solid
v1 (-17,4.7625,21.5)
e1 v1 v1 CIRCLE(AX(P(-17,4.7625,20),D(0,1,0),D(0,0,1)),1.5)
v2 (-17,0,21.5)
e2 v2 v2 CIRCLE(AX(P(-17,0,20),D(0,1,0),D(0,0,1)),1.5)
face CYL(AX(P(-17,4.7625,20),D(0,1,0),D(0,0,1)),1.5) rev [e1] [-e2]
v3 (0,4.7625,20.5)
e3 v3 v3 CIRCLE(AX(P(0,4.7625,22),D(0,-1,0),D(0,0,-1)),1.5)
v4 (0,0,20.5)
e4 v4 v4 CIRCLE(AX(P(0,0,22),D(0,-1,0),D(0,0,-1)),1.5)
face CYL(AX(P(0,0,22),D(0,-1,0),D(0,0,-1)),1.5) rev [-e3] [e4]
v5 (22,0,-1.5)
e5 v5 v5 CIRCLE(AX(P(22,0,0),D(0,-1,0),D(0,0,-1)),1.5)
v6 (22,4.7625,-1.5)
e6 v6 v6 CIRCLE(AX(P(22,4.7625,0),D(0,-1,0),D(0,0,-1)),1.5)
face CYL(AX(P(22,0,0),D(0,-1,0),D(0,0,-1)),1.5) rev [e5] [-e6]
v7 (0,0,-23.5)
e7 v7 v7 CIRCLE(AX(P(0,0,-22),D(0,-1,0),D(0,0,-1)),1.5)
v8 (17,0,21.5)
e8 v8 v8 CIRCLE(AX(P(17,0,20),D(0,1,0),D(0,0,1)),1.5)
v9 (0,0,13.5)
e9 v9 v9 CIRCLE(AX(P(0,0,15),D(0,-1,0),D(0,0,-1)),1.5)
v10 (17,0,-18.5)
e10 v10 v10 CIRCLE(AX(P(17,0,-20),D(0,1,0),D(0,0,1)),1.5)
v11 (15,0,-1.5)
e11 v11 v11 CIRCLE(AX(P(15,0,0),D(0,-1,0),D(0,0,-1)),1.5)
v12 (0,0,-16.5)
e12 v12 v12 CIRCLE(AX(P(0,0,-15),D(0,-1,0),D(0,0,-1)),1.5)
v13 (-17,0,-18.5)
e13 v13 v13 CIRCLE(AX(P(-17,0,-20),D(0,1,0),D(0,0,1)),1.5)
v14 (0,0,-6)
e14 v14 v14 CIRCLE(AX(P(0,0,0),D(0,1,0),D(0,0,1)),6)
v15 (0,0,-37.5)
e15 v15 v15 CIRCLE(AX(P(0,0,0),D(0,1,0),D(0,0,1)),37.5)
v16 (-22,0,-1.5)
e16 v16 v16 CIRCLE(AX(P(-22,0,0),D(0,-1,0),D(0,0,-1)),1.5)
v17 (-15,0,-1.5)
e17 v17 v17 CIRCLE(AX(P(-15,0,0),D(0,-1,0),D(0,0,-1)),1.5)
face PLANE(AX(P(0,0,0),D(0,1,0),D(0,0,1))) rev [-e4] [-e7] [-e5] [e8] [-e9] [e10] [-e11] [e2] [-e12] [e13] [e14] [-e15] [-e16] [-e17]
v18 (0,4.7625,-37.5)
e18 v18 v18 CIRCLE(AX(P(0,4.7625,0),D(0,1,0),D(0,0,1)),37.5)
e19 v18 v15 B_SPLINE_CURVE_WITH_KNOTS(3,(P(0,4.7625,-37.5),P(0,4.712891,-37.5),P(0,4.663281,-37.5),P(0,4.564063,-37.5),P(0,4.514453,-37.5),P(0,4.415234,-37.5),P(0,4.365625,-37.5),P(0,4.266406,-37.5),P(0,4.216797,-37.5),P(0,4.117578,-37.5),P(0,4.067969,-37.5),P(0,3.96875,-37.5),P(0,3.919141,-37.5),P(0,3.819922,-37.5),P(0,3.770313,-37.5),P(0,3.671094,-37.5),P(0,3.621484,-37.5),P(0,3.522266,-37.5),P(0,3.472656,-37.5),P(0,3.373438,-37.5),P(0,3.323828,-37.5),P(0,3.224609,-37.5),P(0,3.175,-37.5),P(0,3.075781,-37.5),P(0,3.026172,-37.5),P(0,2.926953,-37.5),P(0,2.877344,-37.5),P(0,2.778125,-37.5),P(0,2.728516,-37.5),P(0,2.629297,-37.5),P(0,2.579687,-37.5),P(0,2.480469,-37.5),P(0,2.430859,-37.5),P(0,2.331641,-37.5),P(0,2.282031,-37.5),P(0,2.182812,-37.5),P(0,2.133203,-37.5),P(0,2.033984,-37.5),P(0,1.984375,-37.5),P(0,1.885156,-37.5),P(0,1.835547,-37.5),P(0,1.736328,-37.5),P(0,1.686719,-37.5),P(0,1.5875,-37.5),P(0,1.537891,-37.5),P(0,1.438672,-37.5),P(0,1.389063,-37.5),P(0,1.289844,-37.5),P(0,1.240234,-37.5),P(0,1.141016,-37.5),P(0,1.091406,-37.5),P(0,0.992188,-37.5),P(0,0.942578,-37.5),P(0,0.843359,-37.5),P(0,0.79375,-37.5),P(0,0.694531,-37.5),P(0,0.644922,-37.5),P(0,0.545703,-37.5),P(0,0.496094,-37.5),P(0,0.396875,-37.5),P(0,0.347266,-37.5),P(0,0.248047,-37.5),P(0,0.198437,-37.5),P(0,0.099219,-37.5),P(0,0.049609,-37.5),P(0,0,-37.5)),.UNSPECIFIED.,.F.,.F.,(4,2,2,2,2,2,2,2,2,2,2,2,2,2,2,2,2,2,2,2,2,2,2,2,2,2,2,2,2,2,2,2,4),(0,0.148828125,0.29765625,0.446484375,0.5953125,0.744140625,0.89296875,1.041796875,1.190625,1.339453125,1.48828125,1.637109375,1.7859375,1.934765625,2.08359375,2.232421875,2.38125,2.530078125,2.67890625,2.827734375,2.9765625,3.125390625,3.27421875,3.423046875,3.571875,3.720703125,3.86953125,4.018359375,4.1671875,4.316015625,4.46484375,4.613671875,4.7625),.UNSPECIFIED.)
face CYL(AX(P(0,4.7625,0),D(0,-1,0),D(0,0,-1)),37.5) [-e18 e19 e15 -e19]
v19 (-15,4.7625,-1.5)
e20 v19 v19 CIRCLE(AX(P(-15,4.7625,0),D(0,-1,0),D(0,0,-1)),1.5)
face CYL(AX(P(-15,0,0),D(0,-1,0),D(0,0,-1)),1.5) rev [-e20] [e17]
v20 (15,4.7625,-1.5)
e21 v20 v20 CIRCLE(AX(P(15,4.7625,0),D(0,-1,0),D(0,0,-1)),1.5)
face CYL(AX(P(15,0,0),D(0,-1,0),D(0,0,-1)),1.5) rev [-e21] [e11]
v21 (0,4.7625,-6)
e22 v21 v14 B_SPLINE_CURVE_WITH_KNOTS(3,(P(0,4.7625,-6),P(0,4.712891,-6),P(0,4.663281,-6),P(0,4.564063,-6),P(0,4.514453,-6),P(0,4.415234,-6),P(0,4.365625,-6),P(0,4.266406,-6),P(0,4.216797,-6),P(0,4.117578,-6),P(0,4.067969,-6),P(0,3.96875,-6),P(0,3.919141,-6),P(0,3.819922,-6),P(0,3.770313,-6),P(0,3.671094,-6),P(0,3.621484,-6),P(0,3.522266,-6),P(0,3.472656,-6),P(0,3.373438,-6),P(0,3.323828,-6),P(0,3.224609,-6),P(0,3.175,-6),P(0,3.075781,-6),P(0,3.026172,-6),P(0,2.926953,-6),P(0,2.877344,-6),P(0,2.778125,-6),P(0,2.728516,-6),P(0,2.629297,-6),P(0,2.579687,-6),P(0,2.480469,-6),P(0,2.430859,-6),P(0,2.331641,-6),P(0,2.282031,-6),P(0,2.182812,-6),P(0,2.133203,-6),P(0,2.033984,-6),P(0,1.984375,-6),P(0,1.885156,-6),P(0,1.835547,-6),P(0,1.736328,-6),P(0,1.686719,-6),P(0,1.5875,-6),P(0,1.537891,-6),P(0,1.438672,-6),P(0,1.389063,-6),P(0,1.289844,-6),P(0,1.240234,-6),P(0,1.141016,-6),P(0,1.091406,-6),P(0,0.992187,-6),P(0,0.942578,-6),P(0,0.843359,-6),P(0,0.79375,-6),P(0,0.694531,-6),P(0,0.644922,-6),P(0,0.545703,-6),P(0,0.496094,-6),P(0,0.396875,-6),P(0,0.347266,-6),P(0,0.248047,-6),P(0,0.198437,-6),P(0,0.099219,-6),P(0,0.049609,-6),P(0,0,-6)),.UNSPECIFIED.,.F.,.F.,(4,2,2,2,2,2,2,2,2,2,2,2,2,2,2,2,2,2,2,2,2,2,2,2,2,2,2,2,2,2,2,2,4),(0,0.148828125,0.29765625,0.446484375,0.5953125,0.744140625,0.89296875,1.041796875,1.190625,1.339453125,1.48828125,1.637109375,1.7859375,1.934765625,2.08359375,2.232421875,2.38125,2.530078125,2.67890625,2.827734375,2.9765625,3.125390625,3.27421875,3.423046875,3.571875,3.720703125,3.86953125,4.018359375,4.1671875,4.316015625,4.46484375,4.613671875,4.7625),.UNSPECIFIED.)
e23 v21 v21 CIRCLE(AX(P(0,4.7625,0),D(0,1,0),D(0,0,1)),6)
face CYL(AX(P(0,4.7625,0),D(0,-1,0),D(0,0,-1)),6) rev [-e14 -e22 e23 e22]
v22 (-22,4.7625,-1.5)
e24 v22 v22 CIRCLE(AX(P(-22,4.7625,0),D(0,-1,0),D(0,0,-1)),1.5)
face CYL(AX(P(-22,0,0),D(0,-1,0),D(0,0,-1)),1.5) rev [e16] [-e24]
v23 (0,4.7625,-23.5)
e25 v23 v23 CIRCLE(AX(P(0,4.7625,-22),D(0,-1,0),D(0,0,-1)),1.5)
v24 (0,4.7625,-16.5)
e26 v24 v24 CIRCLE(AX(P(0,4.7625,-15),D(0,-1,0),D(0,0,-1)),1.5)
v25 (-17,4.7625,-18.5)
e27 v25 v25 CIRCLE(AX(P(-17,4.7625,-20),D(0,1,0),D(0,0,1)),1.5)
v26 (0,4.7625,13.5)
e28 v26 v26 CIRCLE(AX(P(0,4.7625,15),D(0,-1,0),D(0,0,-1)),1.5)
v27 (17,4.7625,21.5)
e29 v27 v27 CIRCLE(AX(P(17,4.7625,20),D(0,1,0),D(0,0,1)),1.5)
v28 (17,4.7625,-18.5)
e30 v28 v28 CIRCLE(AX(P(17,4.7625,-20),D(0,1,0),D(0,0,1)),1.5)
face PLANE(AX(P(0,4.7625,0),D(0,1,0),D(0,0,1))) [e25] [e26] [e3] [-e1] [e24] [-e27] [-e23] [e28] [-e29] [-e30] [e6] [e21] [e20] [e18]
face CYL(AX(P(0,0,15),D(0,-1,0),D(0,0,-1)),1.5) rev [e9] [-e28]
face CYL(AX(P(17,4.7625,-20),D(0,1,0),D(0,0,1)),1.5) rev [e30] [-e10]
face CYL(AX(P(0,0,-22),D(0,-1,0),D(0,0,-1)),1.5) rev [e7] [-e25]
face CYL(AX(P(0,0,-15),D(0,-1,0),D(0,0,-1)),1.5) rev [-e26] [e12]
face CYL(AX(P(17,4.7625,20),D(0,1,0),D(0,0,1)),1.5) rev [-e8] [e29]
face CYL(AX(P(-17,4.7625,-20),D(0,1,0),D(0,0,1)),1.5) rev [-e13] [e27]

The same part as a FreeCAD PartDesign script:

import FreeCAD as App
import Part
import Sketcher

V = App.Vector
Q = App.Units.Quantity

doc = App.newDocument("Part")
body = doc.addObject("PartDesign::Body", "Body")

# Sketch on XZ plane
sketch1 = doc.addObject("Sketcher::SketchObject", "Sketch")
body.addObject(sketch1)
sketch1.AttachmentSupport = (doc.XZ_Plane, [""])
sketch1.MapMode = "FlatFace"
sketch1.addGeometry([
    Part.Circle(V(0, 0, 0), V(0, 0, 1), 38),
    Part.Circle(V(0, 0, 0), V(0, 0, 1), 6),
], False)
sketch1.addConstraint([
    Sketcher.Constraint("Coincident", 0, 3, -1, 1),
    Sketcher.Constraint("Coincident", 1, 3, -1, 1),
    Sketcher.Constraint("Diameter", 0, Q("75 mm")),
    Sketcher.Constraint("Diameter", 1, Q("12 mm")),
])
pad1 = doc.addObject("PartDesign::Pad", "Pad")
body.addObject(pad1)
pad1.Profile = sketch1
pad1.Length = 4.7625
pad1.Reversed = True

# Sketch on XZ plane
sketch2 = doc.addObject("Sketcher::SketchObject", "Sketch001")
body.addObject(sketch2)
sketch2.AttachmentSupport = (doc.XZ_Plane, [""])
sketch2.MapMode = "FlatFace"
sketch2.addGeometry([
    Part.Circle(V(0, -15, 0), V(0, 0, 1), 1.5),  # 0
    Part.Circle(V(0, -22, 0), V(0, 0, 1), 1.5),  # 1
    Part.Circle(V(-22, 0, 0), V(0, 0, 1), 1.5),  # 2
    Part.Circle(V(-15, 0, 0), V(0, 0, 1), 1.5),  # 3
    Part.Circle(V(0, 15, 0), V(0, 0, 1), 1.5),  # 4
    Part.Circle(V(0, 22, 0), V(0, 0, 1), 1.5),  # 5
    Part.Circle(V(15, 0, 0), V(0, 0, 1), 1.5),  # 6
    Part.Circle(V(22, 0, 0), V(0, 0, 1), 1.5),  # 7
], False)
sketch2.addConstraint([
    Sketcher.Constraint("Equal", 0, 1),
    Sketcher.Constraint("Equal", 1, 2),
    Sketcher.Constraint("Equal", 2, 3),
    Sketcher.Constraint("Equal", 3, 4),
    Sketcher.Constraint("Equal", 4, 5),
    Sketcher.Constraint("Equal", 5, 6),
    Sketcher.Constraint("Equal", 6, 7),
    Sketcher.Constraint("Symmetric", 0, 3, 4, 3, -1, 1),
    Sketcher.Constraint("Symmetric", 1, 3, 5, 3, -1, 1),
    Sketcher.Constraint("Symmetric", 3, 3, 6, 3, -1, 1),
    Sketcher.Constraint("Symmetric", 2, 3, 7, 3, -1, 1),
    Sketcher.Constraint("PointOnObject", 0, 3, -2),
    Sketcher.Constraint("PointOnObject", 1, 3, -2),
    Sketcher.Constraint("PointOnObject", 2, 3, -1),
    Sketcher.Constraint("PointOnObject", 3, 3, -1),
    Sketcher.Constraint("Diameter", 0, Q("3 mm")),
    Sketcher.Constraint("DistanceY", 0, 3, -1, 1, Q("15 mm")),
    Sketcher.Constraint("DistanceY", 1, 3, -1, 1, Q("22 mm")),
    Sketcher.Constraint("DistanceX", 2, 3, -1, 1, Q("22 mm")),
    Sketcher.Constraint("DistanceX", 3, 3, -1, 1, Q("15 mm")),
])
doc.recompute()
hole = doc.addObject("PartDesign::Hole", "Hole")
body.addObject(hole)
hole.Profile = sketch2
hole.ThreadType = "None"
hole.Diameter = 3
hole.DepthType = "ThroughAll"

# Sketch on XZ plane
sketch3 = doc.addObject("Sketcher::SketchObject", "Sketch002")
body.addObject(sketch3)
sketch3.AttachmentSupport = (doc.XZ_Plane, [""])
sketch3.MapMode = "FlatFace"
sketch3.AttachmentOffset = App.Placement(V(0, 0, -4.7625), App.Rotation())
sketch3.addGeometry([
    Part.Circle(V(-17, -20, 0), V(0, 0, 1), 1.5),
    Part.Circle(V(17, 20, 0), V(0, 0, 1), 1.5),
    Part.Circle(V(-17, 20, 0), V(0, 0, 1), 1.5),
    Part.Circle(V(17, -20, 0), V(0, 0, 1), 1.5),
], False)
sketch3.addConstraint([
    Sketcher.Constraint("Equal", 0, 1),
    Sketcher.Constraint("Equal", 1, 2),
    Sketcher.Constraint("Equal", 2, 3),
    Sketcher.Constraint("Symmetric", 0, 3, 1, 3, -1, 1),
    Sketcher.Constraint("Symmetric", 2, 3, 3, 3, -1, 1),
    Sketcher.Constraint("Symmetric", 1, 3, 2, 3, -2),
    Sketcher.Constraint("Diameter", 0, Q("3 mm")),
    Sketcher.Constraint("DistanceX", 0, 3, -1, 1, Q("17 mm")),
    Sketcher.Constraint("DistanceY", 0, 3, -1, 1, Q("20 mm")),
])
doc.recompute()
hole2 = doc.addObject("PartDesign::Hole", "Hole001")
body.addObject(hole2)
hole2.Profile = sketch3
hole2.ThreadType = "None"
hole2.Diameter = 3
hole2.DepthType = "Dimension"
hole2.Depth = 10
hole2.DrillPoint = "Angled"
hole2.DrillPointAngle = 118
hole2.Reversed = True

doc.recompute()
